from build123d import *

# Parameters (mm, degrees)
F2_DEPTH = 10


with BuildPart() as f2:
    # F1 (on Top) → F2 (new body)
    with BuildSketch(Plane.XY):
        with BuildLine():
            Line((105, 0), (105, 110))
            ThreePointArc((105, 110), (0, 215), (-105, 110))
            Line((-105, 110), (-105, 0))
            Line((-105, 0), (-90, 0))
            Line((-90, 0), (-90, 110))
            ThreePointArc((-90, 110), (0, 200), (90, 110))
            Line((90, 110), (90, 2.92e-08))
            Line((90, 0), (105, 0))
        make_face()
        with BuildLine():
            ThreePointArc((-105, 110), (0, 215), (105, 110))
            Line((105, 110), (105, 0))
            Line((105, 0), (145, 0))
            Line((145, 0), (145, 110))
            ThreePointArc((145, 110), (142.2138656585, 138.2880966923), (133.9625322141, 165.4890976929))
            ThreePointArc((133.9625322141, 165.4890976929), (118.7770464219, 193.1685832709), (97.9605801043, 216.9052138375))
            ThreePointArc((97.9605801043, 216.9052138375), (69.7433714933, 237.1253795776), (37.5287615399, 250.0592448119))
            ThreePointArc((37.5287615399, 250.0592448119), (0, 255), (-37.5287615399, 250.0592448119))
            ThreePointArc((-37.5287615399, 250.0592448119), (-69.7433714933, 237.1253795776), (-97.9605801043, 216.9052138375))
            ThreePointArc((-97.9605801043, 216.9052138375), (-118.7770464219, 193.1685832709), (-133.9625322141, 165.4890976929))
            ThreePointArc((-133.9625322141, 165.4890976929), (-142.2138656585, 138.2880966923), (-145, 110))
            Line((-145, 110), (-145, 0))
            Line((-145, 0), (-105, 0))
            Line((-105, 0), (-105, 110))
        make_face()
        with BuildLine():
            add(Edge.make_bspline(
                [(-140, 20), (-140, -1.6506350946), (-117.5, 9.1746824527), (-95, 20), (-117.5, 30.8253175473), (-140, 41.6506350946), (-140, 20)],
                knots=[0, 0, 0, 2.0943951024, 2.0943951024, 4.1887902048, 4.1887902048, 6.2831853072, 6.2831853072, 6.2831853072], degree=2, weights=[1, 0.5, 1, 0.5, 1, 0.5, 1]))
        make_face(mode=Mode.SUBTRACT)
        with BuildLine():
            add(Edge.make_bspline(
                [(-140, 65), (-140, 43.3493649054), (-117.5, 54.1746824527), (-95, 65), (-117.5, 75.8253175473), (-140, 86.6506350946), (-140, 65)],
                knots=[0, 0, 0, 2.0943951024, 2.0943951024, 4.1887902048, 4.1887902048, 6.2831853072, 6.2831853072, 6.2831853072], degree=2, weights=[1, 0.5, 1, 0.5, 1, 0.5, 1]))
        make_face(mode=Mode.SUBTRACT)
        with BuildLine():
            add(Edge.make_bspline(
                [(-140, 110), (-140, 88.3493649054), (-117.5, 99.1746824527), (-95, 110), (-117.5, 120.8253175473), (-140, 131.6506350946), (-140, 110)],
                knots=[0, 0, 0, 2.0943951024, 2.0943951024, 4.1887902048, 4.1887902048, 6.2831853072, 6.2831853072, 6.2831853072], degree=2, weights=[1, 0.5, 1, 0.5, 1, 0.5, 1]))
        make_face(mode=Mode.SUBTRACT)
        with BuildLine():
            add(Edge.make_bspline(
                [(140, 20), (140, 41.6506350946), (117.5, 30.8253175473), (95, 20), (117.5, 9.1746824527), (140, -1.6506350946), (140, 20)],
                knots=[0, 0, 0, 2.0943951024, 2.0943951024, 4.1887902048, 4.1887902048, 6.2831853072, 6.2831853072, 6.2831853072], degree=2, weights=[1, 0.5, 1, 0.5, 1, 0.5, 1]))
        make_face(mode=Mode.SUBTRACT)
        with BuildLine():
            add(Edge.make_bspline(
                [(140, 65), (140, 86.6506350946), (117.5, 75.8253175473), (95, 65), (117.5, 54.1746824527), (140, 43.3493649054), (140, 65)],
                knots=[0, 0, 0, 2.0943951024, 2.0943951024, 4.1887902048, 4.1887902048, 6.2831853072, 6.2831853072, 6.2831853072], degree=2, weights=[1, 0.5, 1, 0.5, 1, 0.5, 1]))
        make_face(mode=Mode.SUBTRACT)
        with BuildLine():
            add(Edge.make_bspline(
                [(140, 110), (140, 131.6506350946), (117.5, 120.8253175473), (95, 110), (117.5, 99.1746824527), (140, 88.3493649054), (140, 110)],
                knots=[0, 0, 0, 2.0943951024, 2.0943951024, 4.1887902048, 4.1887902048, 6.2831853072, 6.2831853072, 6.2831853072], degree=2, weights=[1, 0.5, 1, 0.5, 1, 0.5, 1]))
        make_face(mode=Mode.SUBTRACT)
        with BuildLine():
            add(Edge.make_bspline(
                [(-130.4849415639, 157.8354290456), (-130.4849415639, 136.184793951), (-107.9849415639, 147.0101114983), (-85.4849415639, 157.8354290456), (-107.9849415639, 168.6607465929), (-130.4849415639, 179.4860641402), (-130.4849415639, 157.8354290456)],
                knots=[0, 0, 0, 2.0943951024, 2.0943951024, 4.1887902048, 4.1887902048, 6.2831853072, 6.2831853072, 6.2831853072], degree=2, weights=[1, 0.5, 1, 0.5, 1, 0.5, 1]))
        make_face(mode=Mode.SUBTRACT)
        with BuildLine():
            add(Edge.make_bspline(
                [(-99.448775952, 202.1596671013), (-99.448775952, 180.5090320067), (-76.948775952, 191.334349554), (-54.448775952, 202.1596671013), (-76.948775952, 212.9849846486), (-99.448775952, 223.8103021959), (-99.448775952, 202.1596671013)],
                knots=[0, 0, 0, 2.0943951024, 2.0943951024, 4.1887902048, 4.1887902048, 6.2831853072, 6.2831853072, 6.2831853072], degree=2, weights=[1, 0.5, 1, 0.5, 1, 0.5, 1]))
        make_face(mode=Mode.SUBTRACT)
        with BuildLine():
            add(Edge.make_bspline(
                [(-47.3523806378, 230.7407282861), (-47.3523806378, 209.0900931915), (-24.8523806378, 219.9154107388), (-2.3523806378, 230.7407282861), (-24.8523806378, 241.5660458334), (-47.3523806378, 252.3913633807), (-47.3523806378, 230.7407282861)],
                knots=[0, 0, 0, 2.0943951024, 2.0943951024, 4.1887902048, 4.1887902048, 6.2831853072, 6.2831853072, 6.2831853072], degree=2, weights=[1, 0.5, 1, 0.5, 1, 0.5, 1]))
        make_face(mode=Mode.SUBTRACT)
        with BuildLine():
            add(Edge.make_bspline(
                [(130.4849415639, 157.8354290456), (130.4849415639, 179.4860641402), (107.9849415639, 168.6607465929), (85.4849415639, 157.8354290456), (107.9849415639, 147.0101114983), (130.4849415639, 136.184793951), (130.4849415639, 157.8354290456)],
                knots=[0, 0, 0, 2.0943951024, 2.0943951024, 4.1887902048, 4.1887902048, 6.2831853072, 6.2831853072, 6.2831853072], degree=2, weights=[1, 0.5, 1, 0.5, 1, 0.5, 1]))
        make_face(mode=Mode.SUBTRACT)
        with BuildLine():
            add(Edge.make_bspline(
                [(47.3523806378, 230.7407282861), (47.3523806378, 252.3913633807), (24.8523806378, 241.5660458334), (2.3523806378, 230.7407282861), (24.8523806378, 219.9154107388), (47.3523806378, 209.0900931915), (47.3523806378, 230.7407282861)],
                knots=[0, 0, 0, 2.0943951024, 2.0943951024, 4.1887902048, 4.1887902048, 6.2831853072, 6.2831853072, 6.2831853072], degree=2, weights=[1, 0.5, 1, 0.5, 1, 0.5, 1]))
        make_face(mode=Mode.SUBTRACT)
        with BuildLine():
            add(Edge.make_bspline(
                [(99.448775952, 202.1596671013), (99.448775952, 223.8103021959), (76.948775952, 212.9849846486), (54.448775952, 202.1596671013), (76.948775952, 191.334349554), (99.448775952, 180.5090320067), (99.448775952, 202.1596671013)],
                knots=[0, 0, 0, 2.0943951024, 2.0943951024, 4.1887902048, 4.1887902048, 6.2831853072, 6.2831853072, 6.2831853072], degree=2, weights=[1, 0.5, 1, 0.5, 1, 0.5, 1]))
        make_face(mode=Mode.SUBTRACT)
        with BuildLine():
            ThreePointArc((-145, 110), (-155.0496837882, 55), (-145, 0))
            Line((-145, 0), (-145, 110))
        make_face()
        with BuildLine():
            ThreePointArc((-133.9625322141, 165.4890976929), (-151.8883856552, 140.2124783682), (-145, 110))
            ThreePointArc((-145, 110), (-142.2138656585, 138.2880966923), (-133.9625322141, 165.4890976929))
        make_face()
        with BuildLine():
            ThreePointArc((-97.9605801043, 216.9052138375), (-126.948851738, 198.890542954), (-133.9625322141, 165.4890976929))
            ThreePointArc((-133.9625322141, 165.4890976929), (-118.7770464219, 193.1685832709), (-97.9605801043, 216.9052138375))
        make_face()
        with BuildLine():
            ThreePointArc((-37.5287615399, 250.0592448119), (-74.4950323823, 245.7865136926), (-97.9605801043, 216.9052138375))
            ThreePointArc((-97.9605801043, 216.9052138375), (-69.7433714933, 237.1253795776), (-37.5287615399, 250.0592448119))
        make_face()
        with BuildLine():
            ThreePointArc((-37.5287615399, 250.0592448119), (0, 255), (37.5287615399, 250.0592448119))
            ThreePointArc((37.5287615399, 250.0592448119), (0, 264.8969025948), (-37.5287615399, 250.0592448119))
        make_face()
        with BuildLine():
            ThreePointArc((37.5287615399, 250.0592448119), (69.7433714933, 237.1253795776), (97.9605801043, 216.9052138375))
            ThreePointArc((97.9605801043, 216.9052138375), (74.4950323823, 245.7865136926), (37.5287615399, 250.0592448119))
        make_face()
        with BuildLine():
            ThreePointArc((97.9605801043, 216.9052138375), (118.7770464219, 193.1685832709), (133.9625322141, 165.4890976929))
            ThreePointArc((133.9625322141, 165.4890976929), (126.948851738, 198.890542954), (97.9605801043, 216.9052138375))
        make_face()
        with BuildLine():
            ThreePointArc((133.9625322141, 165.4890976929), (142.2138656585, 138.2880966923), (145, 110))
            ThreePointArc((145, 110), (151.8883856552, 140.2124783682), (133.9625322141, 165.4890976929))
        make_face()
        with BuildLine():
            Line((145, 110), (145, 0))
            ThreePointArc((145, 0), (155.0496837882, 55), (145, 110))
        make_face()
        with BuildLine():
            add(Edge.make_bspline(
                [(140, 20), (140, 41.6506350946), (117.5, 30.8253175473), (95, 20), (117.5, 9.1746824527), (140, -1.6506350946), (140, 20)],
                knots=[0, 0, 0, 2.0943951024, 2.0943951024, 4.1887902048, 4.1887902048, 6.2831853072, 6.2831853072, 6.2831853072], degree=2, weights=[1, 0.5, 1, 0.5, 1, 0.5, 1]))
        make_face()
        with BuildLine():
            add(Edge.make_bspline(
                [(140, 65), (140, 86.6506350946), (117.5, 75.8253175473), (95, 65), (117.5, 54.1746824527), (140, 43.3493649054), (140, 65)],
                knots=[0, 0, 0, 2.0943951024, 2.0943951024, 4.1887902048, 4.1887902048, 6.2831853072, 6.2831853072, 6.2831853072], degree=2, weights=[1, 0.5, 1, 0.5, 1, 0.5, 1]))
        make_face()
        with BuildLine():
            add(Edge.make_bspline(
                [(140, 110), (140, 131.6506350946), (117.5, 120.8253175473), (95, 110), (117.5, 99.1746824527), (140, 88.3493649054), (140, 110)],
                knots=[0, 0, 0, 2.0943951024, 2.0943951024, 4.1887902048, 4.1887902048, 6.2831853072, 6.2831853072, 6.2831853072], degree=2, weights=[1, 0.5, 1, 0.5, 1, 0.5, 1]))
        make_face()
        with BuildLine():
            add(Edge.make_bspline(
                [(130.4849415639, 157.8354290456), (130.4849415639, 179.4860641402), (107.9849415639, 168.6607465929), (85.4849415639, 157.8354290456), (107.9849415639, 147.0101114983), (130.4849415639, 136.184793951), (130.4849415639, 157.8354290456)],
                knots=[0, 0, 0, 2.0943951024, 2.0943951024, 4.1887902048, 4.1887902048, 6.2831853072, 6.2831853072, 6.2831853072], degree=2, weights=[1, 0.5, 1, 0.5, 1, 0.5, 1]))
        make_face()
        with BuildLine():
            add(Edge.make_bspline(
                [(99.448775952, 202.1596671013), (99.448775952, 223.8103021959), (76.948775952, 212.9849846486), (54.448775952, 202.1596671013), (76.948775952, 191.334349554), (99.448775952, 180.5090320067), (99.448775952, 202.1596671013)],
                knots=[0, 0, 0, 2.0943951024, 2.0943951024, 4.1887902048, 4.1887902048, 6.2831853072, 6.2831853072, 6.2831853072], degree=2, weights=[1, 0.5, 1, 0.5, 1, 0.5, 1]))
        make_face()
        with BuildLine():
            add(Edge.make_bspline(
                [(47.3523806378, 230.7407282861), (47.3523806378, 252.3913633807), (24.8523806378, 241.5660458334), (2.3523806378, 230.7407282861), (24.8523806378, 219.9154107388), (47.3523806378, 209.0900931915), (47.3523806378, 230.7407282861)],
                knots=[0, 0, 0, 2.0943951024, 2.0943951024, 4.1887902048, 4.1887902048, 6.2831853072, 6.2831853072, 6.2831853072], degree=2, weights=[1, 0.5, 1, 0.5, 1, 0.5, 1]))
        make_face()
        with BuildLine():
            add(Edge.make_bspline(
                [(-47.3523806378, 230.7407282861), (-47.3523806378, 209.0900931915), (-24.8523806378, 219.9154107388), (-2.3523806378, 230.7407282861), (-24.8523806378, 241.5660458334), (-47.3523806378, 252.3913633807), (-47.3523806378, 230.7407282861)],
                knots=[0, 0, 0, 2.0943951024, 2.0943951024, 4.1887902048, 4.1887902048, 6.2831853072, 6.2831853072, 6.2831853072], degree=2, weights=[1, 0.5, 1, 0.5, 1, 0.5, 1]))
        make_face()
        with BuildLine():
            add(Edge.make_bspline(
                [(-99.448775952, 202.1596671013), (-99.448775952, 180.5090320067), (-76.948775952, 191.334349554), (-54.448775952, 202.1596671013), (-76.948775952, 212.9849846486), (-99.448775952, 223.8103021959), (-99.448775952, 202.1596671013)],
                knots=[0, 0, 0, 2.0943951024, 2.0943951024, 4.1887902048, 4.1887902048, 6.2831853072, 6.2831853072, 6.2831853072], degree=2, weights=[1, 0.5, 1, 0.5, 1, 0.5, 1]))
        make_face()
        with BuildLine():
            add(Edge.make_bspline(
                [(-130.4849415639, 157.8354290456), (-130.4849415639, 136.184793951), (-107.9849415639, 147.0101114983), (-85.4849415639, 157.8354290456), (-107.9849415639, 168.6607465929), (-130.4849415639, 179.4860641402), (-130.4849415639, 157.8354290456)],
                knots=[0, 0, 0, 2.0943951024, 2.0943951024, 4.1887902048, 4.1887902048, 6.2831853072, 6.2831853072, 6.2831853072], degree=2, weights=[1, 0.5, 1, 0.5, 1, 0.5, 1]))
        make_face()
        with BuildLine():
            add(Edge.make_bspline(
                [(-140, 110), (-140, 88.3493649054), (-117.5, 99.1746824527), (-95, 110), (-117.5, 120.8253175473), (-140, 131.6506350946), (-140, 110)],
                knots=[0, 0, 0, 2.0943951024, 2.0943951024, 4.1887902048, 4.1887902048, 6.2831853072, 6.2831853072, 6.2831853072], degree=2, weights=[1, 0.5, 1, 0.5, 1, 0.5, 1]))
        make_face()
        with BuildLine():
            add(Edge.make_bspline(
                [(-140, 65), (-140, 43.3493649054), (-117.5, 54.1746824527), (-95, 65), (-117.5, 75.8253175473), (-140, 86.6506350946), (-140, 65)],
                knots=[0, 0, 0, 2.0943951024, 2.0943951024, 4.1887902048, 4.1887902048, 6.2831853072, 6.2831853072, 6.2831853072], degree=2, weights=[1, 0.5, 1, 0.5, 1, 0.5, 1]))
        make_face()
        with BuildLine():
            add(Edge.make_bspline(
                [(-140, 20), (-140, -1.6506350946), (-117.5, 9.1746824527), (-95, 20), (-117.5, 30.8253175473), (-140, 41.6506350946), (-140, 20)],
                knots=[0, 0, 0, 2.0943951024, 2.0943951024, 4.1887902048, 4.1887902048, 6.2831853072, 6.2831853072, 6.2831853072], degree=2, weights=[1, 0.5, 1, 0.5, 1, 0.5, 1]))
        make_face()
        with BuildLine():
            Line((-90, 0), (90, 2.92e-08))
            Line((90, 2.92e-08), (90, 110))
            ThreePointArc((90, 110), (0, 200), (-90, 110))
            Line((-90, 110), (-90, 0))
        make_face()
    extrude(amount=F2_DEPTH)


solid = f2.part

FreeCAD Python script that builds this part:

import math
import FreeCAD as App
import Part
import Sketcher
from FreeCAD import Vector

doc = App.newDocument("Part")
params = doc.addObject("Spreadsheet::Sheet", "Params")
for row, (alias, value) in enumerate([
    ("sketch1_width", "55 mm"),
    ("sketch1_width2", "180 mm"),
    ("pad1_length", "10 mm"),
], start=1):
    params.set(f"A{row}", alias)
    params.set(f"B{row}", "=" + value)
    params.setAlias(f"B{row}", alias)

body = doc.addObject("PartDesign::Body", "Body")

# Sketch on XY plane
sketch1 = body.newObject("Sketcher::SketchObject", "Sketch")
sketch1.AttachmentSupport = (doc.getObject("XY_Plane"), [""])
sketch1.MapMode = "FlatFace"
sketch1.addGeometry(Part.LineSegment(Vector(90, 0, 0), Vector(145, 0, 0)), False)
sketch1.addGeometry(Part.ArcOfCircle(Part.Circle(Vector(0, 55, 0), Vector(0, 0, 1), 156), math.radians(-21), math.radians(21)), False)
sketch1.addGeometry(Part.ArcOfCircle(Part.Circle(Vector(115, 133, 0), Vector(0, 0, 1), 38), math.radians(-37), math.radians(59)), False)
sketch1.addGeometry(Part.ArcOfCircle(Part.Circle(Vector(91, 174, 0), Vector(0, 0, 1), 43), math.radians(-11), math.radians(81)), False)
sketch1.addGeometry(Part.ArcOfCircle(Part.Circle(Vector(51, 203, 0), Vector(0, 0, 1), 49), math.radians(17), math.radians(106)), False)
sketch1.addGeometry(Part.ArcOfCircle(Part.Circle(Vector(0, 210, 0), Vector(0, 0, 1), 55), math.radians(47), math.radians(133)), False)
sketch1.addGeometry(Part.ArcOfCircle(Part.Circle(Vector(-51, 203, 0), Vector(0, 0, 1), 49), math.radians(74), math.radians(163)), False)
sketch1.addGeometry(Part.ArcOfCircle(Part.Circle(Vector(-91, 174, 0), Vector(0, 0, 1), 43), math.radians(99), math.radians(191)), False)
sketch1.addGeometry(Part.ArcOfCircle(Part.Circle(Vector(-115, 133, 0), Vector(0, 0, 1), 38), math.radians(121), math.radians(217)), False)
sketch1.addGeometry(Part.ArcOfCircle(Part.Circle(Vector(0, 55, 0), Vector(0, 0, 1), 156), math.radians(159), math.radians(201)), False)
sketch1.addGeometry(Part.LineSegment(Vector(-145, 0, 0), Vector(-90, 0, 0)), False)
sketch1.addGeometry(Part.LineSegment(Vector(-90, 0, 0), Vector(90, 0, 0)), False)
sketch1.addConstraint(Sketcher.Constraint("Coincident", 0, 2, 1, 1))
sketch1.addConstraint(Sketcher.Constraint("Coincident", 1, 2, 2, 1))
sketch1.addConstraint(Sketcher.Constraint("Coincident", 2, 2, 3, 1))
sketch1.addConstraint(Sketcher.Constraint("Coincident", 3, 2, 4, 1))
sketch1.addConstraint(Sketcher.Constraint("Coincident", 4, 2, 5, 1))
sketch1.addConstraint(Sketcher.Constraint("Coincident", 5, 2, 6, 1))
sketch1.addConstraint(Sketcher.Constraint("Coincident", 6, 2, 7, 1))
sketch1.addConstraint(Sketcher.Constraint("Coincident", 7, 2, 8, 1))
sketch1.addConstraint(Sketcher.Constraint("Coincident", 8, 2, 9, 1))
sketch1.addConstraint(Sketcher.Constraint("Coincident", 9, 2, 10, 1))
sketch1.addConstraint(Sketcher.Constraint("Coincident", 10, 2, 11, 1))
sketch1.addConstraint(Sketcher.Constraint("Coincident", 11, 2, 0, 1))
sketch1.addConstraint(Sketcher.Constraint("Horizontal", 0))
sketch1.addConstraint(Sketcher.Constraint("Horizontal", 10))
sketch1.addConstraint(Sketcher.Constraint("Horizontal", 11))
sketch1.addConstraint(Sketcher.Constraint("Equal", 4, 6))
sketch1.addConstraint(Sketcher.Constraint("Equal", 3, 7))
sketch1.addConstraint(Sketcher.Constraint("Equal", 2, 8))
sketch1.addConstraint(Sketcher.Constraint("Equal", 1, 9))
sketch1.addConstraint(Sketcher.Constraint("Symmetric", 0, 2, 9, 2, -1, 1))
sketch1.addConstraint(Sketcher.Constraint("Symmetric", 4, 3, 6, 3, -2))
sketch1.addConstraint(Sketcher.Constraint("Symmetric", 3, 3, 7, 3, -2))
sketch1.addConstraint(Sketcher.Constraint("Symmetric", 2, 3, 8, 3, -2))
sketch1.addConstraint(Sketcher.Constraint("PointOnObject", 5, 3, -2))
sketch1.addConstraint(Sketcher.Constraint("Horizontal", 1, 3, 9, 3))
sketch1.addConstraint(Sketcher.Constraint("Vertical", 0, 2, 1, 2))
sketch1.addConstraint(Sketcher.Constraint("Equal", 0, 10))
sketch1.addConstraint(Sketcher.Constraint("DistanceX", 0, 1, 0, 2, 55.0))
sketch1.addConstraint(Sketcher.Constraint("DistanceX", 11, 1, 11, 2, 180.0))
sketch1.addConstraint(Sketcher.Constraint("DistanceY", -1, 1, 1, 3, 55.0))
sketch1.addConstraint(Sketcher.Constraint("Radius", 1, 155.52709))
sketch1.addConstraint(Sketcher.Constraint("Radius", 2, 37.953728))
sketch1.addConstraint(Sketcher.Constraint("Radius", 4, 49.334742))
sketch1.addConstraint(Sketcher.Constraint("Radius", 3, 43.422325))
sketch1.addConstraint(Sketcher.Constraint("Radius", 5, 54.879417))
sketch1.addConstraint(Sketcher.Constraint("DistanceY", -1, 1, 3, 3, 173.984521))
sketch1.addConstraint(Sketcher.Constraint("DistanceX", -1, 1, 3, 2, 97.96058))
sketch1.addConstraint(Sketcher.Constraint("DistanceX", -1, 1, 4, 2, 37.528762))
sketch1.addConstraint(Sketcher.Constraint("DistanceX", 3, 3, 2, 3, 23.284562))
sketch1.addConstraint(Sketcher.Constraint("DistanceX", 1, 3, 3, 3, 91.856772))
sketch1.addConstraint(Sketcher.Constraint("DistanceX", 4, 3, 3, 3, 40.61379))
sketch1.setExpression("Constraints[27]", "Params.sketch1_width")
sketch1.setExpression("Constraints[28]", "Params.sketch1_width2")
pad1 = body.newObject("PartDesign::Pad", "Pad")
pad1.Profile = sketch1
pad1.setExpression("Length", "Params.pad1_length")

doc.recompute()
